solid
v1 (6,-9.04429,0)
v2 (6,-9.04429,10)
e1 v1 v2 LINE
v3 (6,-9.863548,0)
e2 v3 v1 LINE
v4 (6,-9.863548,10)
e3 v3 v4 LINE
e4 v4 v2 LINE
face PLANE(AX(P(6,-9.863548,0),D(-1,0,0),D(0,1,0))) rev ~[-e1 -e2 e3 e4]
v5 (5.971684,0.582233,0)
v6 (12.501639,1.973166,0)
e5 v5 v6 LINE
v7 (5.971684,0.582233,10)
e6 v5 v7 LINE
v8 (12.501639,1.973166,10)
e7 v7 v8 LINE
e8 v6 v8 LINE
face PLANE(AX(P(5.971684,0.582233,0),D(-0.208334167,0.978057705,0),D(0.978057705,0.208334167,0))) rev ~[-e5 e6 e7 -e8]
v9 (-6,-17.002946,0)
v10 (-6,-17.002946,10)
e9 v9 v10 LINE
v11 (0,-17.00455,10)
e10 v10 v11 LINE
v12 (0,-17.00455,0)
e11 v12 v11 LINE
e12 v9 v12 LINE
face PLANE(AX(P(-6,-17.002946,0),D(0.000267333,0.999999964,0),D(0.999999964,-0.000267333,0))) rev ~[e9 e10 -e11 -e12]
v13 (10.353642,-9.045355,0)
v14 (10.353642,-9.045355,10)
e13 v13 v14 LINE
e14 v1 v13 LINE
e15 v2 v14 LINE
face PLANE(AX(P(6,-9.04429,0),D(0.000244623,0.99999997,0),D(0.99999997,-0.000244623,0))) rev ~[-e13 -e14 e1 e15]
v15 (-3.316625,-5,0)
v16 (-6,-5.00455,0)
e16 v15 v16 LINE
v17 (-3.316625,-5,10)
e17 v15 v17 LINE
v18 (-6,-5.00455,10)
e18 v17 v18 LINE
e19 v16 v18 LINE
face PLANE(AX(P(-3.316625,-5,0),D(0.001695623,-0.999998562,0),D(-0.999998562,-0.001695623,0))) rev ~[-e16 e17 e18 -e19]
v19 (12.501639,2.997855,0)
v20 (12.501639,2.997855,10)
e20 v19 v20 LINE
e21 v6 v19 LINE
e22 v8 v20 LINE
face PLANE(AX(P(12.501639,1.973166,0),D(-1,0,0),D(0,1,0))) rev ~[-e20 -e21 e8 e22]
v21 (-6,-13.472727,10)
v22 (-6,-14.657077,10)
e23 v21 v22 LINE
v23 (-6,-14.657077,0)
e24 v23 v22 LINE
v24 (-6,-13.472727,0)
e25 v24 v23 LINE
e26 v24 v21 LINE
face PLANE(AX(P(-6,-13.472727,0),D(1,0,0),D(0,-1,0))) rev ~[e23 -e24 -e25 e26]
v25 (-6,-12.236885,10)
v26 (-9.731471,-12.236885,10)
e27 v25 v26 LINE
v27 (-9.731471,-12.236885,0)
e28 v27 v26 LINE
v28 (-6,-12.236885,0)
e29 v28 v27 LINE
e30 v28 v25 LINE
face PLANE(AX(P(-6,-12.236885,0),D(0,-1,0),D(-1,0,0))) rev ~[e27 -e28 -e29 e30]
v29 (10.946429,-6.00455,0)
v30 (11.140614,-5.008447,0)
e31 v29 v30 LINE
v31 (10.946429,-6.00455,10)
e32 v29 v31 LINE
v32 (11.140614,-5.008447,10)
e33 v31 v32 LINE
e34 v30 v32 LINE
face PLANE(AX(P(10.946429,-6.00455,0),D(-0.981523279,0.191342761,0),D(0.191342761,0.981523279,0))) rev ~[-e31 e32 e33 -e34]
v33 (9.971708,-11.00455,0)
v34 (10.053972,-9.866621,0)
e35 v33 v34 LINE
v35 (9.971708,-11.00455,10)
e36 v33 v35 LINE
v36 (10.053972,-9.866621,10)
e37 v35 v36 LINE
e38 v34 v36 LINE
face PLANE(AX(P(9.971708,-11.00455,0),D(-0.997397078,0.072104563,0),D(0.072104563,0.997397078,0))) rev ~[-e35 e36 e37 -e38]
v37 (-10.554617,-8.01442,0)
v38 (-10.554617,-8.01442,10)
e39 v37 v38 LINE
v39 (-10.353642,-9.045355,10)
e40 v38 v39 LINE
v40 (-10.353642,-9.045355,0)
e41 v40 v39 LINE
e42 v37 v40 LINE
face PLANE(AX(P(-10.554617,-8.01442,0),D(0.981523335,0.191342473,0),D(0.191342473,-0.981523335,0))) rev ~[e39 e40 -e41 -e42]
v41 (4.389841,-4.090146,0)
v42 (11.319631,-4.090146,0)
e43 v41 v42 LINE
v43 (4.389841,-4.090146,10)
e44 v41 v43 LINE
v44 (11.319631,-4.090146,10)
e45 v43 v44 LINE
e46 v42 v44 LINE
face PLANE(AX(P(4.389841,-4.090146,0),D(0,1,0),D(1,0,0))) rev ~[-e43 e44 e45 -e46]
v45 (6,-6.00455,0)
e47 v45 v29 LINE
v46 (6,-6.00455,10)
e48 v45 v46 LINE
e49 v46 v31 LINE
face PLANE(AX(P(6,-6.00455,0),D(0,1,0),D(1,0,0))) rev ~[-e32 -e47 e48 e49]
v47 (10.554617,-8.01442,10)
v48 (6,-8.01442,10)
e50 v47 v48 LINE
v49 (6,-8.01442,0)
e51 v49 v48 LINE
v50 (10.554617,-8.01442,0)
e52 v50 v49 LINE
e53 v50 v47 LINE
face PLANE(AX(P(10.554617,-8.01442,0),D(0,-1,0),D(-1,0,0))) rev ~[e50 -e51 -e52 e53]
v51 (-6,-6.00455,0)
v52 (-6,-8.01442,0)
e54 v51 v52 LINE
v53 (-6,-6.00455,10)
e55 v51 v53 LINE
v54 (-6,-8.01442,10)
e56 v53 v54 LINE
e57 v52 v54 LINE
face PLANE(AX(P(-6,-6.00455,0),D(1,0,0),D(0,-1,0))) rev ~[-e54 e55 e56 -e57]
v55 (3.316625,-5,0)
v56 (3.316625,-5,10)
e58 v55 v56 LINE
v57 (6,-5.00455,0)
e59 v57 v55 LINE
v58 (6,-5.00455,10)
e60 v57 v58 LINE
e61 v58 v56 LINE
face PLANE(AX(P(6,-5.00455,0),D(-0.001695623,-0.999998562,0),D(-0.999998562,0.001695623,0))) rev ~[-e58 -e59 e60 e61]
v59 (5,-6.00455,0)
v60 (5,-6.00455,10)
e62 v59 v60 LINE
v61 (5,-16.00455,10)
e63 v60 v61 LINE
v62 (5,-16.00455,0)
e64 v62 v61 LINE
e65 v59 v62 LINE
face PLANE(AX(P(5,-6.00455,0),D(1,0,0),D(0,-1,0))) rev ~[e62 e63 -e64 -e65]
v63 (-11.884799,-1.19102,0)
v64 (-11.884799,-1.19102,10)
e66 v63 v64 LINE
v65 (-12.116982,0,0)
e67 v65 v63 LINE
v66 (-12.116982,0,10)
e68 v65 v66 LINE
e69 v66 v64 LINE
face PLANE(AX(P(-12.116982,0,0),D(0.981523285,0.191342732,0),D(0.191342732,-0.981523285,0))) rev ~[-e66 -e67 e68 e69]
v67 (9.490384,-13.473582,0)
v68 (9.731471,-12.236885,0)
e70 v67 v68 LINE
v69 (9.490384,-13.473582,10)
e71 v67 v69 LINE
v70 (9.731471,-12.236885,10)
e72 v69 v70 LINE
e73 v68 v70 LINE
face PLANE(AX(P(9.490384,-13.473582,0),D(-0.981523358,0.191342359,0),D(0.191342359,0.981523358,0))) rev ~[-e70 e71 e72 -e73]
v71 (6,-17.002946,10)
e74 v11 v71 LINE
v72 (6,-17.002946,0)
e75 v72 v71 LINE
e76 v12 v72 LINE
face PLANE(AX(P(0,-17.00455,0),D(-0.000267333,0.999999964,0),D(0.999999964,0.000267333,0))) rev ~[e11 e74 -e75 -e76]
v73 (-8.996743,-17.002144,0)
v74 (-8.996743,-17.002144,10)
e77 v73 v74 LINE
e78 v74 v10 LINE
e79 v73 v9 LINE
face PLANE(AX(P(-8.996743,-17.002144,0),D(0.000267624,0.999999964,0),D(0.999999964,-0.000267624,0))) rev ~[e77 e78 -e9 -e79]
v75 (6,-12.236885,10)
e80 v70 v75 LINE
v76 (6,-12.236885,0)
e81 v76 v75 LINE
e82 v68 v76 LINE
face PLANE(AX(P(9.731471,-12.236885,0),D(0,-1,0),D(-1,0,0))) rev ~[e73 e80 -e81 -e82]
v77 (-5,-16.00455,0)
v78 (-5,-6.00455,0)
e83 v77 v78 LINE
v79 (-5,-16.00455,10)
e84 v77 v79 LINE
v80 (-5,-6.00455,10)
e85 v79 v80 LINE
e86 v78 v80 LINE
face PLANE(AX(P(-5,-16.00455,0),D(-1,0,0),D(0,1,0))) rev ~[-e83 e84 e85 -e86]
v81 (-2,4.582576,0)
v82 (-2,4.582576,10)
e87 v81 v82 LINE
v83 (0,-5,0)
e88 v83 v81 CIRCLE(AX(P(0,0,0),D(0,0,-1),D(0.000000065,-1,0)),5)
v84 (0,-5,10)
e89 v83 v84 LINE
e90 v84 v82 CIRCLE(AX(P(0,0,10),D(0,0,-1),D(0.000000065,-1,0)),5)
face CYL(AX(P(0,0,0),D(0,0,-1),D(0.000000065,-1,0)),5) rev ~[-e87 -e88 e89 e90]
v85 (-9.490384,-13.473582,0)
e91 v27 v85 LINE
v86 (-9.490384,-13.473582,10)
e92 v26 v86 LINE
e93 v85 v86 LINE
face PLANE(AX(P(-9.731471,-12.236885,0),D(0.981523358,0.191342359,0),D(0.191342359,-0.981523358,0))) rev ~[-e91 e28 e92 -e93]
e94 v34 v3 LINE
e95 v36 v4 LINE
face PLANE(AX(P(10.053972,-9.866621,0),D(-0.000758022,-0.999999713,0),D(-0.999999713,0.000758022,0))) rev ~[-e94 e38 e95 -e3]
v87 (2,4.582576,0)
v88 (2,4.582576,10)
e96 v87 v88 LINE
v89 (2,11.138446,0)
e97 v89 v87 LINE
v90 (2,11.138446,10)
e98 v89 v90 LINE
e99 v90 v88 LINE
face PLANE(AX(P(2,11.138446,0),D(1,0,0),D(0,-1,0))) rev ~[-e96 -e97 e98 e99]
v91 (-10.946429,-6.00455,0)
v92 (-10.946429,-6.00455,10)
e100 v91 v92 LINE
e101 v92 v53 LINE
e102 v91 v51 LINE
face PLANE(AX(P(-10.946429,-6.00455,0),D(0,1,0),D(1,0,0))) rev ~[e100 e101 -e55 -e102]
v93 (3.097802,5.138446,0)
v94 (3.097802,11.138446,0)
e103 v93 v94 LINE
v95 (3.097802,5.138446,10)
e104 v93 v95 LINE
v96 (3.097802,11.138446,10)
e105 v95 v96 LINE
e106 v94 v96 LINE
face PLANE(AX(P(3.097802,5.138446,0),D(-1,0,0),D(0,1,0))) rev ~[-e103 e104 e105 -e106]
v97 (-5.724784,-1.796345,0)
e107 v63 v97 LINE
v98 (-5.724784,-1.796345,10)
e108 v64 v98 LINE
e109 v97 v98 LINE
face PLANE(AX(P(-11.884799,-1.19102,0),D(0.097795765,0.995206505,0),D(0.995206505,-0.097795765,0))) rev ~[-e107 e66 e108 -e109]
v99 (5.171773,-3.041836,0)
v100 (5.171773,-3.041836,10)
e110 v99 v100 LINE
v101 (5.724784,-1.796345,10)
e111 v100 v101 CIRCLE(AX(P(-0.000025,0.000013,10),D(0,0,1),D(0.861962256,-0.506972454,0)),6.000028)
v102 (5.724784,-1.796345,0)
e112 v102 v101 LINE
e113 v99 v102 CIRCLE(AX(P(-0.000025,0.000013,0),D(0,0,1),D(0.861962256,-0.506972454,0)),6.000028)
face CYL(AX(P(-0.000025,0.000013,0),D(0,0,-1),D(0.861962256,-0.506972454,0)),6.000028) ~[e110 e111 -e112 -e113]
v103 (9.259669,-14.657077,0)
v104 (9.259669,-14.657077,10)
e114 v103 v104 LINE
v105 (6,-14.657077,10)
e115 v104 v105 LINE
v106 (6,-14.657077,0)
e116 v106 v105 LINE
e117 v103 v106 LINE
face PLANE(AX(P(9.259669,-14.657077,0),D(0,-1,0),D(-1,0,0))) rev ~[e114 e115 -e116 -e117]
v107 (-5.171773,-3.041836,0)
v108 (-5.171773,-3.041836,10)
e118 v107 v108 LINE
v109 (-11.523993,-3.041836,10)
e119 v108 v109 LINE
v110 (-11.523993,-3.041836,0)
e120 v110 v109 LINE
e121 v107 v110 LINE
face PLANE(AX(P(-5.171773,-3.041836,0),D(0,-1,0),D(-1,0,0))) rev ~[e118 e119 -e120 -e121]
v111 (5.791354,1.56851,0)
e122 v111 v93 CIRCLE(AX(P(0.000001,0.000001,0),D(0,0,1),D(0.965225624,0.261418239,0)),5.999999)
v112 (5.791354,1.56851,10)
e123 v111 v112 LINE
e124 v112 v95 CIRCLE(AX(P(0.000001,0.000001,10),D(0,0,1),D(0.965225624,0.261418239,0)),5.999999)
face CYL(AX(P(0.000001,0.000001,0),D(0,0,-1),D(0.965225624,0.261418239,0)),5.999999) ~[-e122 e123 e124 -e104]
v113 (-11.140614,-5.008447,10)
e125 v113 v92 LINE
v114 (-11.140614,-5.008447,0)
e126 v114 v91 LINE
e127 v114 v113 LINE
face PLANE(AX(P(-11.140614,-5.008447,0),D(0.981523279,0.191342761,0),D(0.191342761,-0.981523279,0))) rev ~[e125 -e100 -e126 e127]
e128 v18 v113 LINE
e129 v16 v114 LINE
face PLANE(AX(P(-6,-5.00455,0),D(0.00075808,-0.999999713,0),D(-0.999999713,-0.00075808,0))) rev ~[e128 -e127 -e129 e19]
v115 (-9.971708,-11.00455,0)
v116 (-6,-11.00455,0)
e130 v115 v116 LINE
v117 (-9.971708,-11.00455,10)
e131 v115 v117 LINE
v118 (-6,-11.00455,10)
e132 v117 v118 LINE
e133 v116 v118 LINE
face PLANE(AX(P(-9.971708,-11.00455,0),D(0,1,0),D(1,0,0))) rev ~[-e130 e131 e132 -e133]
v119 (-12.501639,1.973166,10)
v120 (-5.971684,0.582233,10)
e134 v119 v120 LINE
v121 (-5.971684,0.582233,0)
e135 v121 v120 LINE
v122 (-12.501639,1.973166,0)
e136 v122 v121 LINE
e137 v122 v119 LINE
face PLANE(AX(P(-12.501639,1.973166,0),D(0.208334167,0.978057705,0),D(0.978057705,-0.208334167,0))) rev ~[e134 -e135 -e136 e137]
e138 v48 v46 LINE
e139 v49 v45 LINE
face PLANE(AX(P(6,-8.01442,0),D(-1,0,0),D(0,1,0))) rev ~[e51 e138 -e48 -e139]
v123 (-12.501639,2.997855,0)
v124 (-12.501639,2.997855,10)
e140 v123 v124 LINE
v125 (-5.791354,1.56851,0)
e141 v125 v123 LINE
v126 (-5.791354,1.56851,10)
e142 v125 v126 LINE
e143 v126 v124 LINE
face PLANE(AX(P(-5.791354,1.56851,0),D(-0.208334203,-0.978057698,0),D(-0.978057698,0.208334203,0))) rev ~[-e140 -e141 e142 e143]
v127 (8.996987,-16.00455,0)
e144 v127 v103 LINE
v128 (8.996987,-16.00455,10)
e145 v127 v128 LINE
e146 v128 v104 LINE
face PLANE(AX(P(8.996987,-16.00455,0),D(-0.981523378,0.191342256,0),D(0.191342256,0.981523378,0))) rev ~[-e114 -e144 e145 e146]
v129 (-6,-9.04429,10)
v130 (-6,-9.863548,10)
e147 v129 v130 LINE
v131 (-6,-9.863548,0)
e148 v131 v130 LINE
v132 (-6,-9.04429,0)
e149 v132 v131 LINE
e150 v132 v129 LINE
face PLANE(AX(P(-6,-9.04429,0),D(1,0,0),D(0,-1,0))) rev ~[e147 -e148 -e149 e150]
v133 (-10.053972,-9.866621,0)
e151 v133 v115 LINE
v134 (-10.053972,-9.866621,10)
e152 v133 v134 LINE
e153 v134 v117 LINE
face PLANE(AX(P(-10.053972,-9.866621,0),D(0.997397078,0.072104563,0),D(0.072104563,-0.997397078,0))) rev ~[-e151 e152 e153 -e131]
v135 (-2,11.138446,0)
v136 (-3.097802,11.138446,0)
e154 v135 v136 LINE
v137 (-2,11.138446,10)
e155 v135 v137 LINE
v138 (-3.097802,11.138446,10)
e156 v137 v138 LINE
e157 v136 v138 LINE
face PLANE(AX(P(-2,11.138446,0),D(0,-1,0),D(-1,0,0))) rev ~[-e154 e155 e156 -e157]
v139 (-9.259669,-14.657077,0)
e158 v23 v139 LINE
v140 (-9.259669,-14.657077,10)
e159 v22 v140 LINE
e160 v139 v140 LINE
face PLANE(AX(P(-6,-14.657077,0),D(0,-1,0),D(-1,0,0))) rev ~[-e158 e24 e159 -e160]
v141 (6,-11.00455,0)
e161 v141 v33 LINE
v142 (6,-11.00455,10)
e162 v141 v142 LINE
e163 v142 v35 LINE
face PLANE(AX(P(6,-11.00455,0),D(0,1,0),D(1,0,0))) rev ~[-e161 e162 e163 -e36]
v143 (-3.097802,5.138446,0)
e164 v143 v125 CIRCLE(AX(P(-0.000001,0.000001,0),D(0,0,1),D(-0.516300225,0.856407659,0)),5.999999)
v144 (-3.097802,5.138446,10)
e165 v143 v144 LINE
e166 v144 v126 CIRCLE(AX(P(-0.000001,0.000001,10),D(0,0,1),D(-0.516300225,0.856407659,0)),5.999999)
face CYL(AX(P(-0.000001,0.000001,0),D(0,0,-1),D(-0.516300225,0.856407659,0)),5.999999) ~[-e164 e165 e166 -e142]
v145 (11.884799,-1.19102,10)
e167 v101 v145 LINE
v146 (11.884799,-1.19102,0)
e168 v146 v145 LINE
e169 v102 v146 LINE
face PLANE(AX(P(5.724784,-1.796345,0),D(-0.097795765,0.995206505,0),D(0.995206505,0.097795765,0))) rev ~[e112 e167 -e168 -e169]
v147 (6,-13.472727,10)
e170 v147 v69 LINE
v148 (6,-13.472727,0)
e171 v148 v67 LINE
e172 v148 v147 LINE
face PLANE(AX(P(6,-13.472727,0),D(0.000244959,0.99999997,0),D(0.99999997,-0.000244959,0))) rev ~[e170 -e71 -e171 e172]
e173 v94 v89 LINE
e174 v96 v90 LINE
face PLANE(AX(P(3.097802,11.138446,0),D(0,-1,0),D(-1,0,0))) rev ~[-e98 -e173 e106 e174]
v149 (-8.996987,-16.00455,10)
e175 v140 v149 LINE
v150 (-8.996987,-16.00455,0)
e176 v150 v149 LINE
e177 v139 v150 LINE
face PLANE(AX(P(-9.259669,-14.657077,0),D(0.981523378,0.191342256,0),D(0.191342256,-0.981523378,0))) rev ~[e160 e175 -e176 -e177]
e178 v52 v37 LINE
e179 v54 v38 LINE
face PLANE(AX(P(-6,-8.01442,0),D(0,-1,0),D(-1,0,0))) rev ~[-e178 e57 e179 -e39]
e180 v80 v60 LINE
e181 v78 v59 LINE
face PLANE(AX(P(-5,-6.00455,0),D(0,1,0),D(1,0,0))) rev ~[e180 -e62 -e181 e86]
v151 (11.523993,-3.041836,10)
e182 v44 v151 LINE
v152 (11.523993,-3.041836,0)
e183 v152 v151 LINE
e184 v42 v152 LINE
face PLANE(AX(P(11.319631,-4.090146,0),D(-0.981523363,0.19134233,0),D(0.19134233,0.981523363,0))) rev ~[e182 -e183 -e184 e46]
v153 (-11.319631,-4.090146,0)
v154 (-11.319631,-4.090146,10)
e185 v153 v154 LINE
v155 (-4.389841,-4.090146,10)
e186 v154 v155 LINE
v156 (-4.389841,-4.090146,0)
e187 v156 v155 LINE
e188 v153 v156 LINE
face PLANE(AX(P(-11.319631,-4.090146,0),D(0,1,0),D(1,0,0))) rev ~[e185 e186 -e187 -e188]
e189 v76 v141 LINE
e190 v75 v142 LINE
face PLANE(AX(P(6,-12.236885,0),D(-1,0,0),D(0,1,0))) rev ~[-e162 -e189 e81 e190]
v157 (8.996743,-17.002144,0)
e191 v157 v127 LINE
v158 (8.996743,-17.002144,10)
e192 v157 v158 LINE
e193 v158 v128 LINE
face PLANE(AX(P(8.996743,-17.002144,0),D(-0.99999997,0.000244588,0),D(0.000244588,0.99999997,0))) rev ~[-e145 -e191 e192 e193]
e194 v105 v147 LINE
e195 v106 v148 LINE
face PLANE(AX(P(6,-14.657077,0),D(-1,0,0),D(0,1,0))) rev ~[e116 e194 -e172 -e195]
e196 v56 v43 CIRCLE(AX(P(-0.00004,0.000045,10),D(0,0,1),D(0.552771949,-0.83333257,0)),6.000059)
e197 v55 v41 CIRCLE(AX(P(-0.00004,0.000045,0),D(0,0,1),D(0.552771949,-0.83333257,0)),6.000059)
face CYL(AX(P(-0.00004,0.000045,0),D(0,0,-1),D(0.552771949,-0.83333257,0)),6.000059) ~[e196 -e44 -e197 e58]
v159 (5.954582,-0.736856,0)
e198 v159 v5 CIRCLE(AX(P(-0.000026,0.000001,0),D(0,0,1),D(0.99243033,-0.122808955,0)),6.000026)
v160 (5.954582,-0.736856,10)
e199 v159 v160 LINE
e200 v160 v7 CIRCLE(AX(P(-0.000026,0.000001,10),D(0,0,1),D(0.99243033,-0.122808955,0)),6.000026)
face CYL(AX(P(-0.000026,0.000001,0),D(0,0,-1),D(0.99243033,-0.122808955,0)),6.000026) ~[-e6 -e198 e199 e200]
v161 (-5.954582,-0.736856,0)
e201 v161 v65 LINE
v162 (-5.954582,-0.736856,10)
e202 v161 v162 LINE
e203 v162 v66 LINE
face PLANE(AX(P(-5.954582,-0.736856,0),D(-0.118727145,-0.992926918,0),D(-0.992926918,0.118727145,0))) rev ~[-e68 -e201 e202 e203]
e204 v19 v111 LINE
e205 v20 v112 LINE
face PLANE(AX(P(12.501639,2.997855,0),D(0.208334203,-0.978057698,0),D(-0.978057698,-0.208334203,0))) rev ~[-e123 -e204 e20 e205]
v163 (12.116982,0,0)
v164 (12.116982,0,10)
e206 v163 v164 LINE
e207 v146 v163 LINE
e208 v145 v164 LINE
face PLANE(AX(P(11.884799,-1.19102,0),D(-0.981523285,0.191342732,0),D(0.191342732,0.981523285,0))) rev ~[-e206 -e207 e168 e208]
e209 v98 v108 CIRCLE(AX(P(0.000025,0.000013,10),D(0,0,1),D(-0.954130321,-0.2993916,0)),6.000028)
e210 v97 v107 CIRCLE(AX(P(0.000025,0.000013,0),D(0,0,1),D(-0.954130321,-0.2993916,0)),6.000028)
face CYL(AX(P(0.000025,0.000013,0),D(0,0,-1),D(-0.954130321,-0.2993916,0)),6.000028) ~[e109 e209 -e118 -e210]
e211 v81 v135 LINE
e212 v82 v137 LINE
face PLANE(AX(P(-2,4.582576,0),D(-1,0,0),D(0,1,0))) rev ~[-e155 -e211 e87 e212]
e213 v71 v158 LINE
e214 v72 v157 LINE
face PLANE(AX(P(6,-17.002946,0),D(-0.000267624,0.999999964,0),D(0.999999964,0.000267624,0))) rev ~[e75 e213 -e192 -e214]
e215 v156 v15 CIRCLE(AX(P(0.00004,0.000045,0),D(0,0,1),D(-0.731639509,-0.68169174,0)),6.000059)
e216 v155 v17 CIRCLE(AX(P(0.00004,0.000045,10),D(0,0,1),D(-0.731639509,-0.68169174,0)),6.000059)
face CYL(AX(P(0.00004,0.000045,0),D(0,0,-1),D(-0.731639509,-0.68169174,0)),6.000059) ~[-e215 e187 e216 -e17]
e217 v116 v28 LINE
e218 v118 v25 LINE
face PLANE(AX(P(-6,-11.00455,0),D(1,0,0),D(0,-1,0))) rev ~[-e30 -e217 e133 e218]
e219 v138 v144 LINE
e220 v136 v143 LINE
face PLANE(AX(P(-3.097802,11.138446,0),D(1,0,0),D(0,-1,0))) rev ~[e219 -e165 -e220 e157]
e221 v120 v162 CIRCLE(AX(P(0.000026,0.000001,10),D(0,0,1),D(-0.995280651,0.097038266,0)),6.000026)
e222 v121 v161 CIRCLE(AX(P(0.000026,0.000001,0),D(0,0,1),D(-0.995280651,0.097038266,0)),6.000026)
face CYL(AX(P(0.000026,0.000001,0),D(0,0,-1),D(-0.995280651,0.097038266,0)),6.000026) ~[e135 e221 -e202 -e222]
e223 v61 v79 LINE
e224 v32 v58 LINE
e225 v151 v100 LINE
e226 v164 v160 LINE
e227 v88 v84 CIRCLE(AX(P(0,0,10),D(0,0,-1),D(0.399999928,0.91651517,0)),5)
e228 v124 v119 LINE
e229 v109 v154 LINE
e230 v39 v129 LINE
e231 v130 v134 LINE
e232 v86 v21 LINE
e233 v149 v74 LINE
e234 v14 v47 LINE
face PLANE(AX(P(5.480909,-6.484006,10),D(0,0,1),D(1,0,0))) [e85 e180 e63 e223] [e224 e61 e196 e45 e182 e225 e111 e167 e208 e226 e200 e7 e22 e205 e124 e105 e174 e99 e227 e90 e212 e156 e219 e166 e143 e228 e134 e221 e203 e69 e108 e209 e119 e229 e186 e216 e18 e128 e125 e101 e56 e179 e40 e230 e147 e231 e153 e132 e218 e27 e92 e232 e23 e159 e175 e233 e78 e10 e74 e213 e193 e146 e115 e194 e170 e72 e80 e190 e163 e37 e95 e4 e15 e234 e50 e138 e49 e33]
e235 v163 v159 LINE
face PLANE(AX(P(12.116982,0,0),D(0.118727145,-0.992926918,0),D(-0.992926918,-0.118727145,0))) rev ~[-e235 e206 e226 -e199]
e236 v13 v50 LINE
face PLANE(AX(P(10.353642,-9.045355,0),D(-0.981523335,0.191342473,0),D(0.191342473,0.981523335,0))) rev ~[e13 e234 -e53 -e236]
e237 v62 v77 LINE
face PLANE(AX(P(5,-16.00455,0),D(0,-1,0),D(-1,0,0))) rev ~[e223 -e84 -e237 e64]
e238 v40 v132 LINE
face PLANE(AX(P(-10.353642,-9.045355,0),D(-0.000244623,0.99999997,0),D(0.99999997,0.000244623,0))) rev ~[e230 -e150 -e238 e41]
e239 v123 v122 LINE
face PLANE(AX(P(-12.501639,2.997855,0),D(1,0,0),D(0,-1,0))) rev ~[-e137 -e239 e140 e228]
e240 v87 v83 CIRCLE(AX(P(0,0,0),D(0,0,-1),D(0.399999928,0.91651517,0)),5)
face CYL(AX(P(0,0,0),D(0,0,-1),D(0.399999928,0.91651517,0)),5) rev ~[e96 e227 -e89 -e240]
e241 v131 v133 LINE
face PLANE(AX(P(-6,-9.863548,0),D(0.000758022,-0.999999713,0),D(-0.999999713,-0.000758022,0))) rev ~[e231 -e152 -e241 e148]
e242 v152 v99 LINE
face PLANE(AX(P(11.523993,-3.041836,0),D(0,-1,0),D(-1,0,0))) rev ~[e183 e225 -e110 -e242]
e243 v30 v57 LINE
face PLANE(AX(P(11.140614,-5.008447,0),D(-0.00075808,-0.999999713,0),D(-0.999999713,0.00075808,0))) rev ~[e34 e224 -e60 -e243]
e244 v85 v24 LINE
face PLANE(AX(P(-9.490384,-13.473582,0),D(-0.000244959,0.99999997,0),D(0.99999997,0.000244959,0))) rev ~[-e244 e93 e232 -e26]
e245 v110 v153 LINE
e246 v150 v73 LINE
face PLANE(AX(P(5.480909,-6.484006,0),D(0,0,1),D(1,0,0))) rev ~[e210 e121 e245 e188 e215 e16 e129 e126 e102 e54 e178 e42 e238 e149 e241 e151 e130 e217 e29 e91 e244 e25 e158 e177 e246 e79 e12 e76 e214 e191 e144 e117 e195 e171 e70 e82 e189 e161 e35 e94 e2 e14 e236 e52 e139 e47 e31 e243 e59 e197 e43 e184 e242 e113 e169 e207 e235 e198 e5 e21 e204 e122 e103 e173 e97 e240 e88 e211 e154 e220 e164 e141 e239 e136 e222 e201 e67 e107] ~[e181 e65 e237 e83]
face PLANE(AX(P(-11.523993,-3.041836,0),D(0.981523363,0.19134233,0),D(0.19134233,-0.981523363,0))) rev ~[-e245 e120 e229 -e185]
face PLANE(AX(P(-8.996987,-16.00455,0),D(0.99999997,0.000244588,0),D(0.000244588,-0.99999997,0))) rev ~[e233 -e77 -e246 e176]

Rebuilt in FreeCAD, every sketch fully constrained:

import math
import FreeCAD as App
import Part
import Sketcher

V = App.Vector

doc = App.newDocument("Part")
body = doc.addObject("PartDesign::Body", "Body")

sketch1 = doc.addObject("Sketcher::SketchObject", "Sketch")
body.addObject(sketch1)
sketch1.AttachmentSupport = (doc.XY_Plane, [""])
sketch1.MapMode = "FlatFace"
sketch1.addGeometry(Part.ArcOfCircle(Part.Circle(V(0, 0, 0), V(0, 0, 1), 5), math.radians(-90.000004), math.radians(66.421826)), False)
sketch1.addGeometry(Part.ArcOfCircle(Part.Circle(V(0, 0, 0), V(0, 0, 1), 5), math.radians(113.578174), math.radians(270.000004)), False)
sketch1.addGeometry(Part.LineSegment(V(-2, 4.582576, 0), V(-2, 11.138446, 0)), False)
sketch1.addGeometry(Part.LineSegment(V(-2, 11.138446, 0), V(-3.097802, 11.138446, 0)), False)
sketch1.addGeometry(Part.LineSegment(V(-3.097802, 11.138446, 0), V(-3.097802, 5.138446, 0)), False)
sketch1.addGeometry(Part.ArcOfCircle(Part.Circle(V(-0.000001, 0.000001, 0), V(0, 0, 1), 5.999999), math.radians(121.084403), math.radians(164.845768)), False)
sketch1.addGeometry(Part.LineSegment(V(-5.791354, 1.56851, 0), V(-12.501639, 2.997855, 0)), False)
sketch1.addGeometry(Part.LineSegment(V(-12.501639, 2.997855, 0), V(-12.501639, 1.973166, 0)), False)
sketch1.addGeometry(Part.LineSegment(V(-12.501639, 1.973166, 0), V(-5.971684, 0.582233, 0)), False)
sketch1.addGeometry(Part.ArcOfCircle(Part.Circle(V(0.000026, 0.000001, 0), V(0, 0, 1), 6.000026), math.radians(174.431354), math.radians(187.054243)), False)
sketch1.addGeometry(Part.LineSegment(V(-5.954582, -0.736856, 0), V(-12.116982, 0, 0)), False)
sketch1.addGeometry(Part.LineSegment(V(-12.116982, 0, 0), V(-11.884799, -1.19102, 0)), False)
sketch1.addGeometry(Part.LineSegment(V(-11.884799, -1.19102, 0), V(-5.724784, -1.796345, 0)), False)
sketch1.addGeometry(Part.ArcOfCircle(Part.Circle(V(0.000025, 0.000013, 0), V(0, 0, 1), 6.000028), math.radians(-162.578935), math.radians(-149.537624)), False)
sketch1.addGeometry(Part.LineSegment(V(-5.171773, -3.041836, 0), V(-11.523993, -3.041836, 0)), False)
sketch1.addGeometry(Part.LineSegment(V(-11.523993, -3.041836, 0), V(-11.319631, -4.090146, 0)), False)
sketch1.addGeometry(Part.LineSegment(V(-11.319631, -4.090146, 0), V(-4.389841, -4.090146, 0)), False)
sketch1.addGeometry(Part.ArcOfCircle(Part.Circle(V(0.00004, 0.000045, 0), V(0, 0, 1), 6.000059), math.radians(-137.024017), math.radians(-123.557389)), False)
sketch1.addGeometry(Part.LineSegment(V(-3.316625, -5, 0), V(-6, -5.00455, 0)), False)
sketch1.addGeometry(Part.LineSegment(V(-6, -5.00455, 0), V(-11.140614, -5.008447, 0)), False)
sketch1.addGeometry(Part.LineSegment(V(-11.140614, -5.008447, 0), V(-10.946429, -6.00455, 0)), False)
sketch1.addGeometry(Part.LineSegment(V(-10.946429, -6.00455, 0), V(-6, -6.00455, 0)), False)
sketch1.addGeometry(Part.LineSegment(V(-6, -6.00455, 0), V(-6, -8.01442, 0)), False)
sketch1.addGeometry(Part.LineSegment(V(-6, -8.01442, 0), V(-10.554617, -8.01442, 0)), False)
sketch1.addGeometry(Part.LineSegment(V(-10.554617, -8.01442, 0), V(-10.353642, -9.045355, 0)), False)
sketch1.addGeometry(Part.LineSegment(V(-10.353642, -9.045355, 0), V(-6, -9.04429, 0)), False)
sketch1.addGeometry(Part.LineSegment(V(-6, -9.04429, 0), V(-6, -9.863548, 0)), False)
sketch1.addGeometry(Part.LineSegment(V(-6, -9.863548, 0), V(-10.053972, -9.866621, 0)), False)
sketch1.addGeometry(Part.LineSegment(V(-10.053972, -9.866621, 0), V(-9.971708, -11.00455, 0)), False)
sketch1.addGeometry(Part.LineSegment(V(-9.971708, -11.00455, 0), V(-6, -11.00455, 0)), False)
sketch1.addGeometry(Part.LineSegment(V(-6, -11.00455, 0), V(-6, -12.236885, 0)), False)
sketch1.addGeometry(Part.LineSegment(V(-6, -12.236885, 0), V(-9.731471, -12.236885, 0)), False)
sketch1.addGeometry(Part.LineSegment(V(-9.731471, -12.236885, 0), V(-9.490384, -13.473582, 0)), False)
sketch1.addGeometry(Part.LineSegment(V(-9.490384, -13.473582, 0), V(-6, -13.472727, 0)), False)
sketch1.addGeometry(Part.LineSegment(V(-6, -13.472727, 0), V(-6, -14.657077, 0)), False)
sketch1.addGeometry(Part.LineSegment(V(-6, -14.657077, 0), V(-9.259669, -14.657077, 0)), False)
sketch1.addGeometry(Part.LineSegment(V(-9.259669, -14.657077, 0), V(-8.996987, -16.00455, 0)), False)
sketch1.addGeometry(Part.LineSegment(V(-8.996987, -16.00455, 0), V(-8.996743, -17.002144, 0)), False)
sketch1.addGeometry(Part.LineSegment(V(-8.996743, -17.002144, 0), V(-6, -17.002946, 0)), False)
sketch1.addGeometry(Part.LineSegment(V(-6, -17.002946, 0), V(0, -17.00455, 0)), False)
sketch1.addGeometry(Part.LineSegment(V(0, -17.00455, 0), V(6, -17.002946, 0)), False)
sketch1.addGeometry(Part.LineSegment(V(6, -17.002946, 0), V(8.996743, -17.002144, 0)), False)
sketch1.addGeometry(Part.LineSegment(V(8.996743, -17.002144, 0), V(8.996987, -16.00455, 0)), False)
sketch1.addGeometry(Part.LineSegment(V(8.996987, -16.00455, 0), V(9.259669, -14.657077, 0)), False)
sketch1.addGeometry(Part.LineSegment(V(9.259669, -14.657077, 0), V(6, -14.657077, 0)), False)
sketch1.addGeometry(Part.LineSegment(V(6, -14.657077, 0), V(6, -13.472727, 0)), False)
sketch1.addGeometry(Part.LineSegment(V(6, -13.472727, 0), V(9.490384, -13.473582, 0)), False)
sketch1.addGeometry(Part.LineSegment(V(9.490384, -13.473582, 0), V(9.731471, -12.236885, 0)), False)
sketch1.addGeometry(Part.LineSegment(V(9.731471, -12.236885, 0), V(6, -12.236885, 0)), False)
sketch1.addGeometry(Part.LineSegment(V(6, -12.236885, 0), V(6, -11.00455, 0)), False)
sketch1.addGeometry(Part.LineSegment(V(6, -11.00455, 0), V(9.971708, -11.00455, 0)), False)
sketch1.addGeometry(Part.LineSegment(V(9.971708, -11.00455, 0), V(10.053972, -9.866621, 0)), False)
sketch1.addGeometry(Part.LineSegment(V(10.053972, -9.866621, 0), V(6, -9.863548, 0)), False)
sketch1.addGeometry(Part.LineSegment(V(6, -9.863548, 0), V(6, -9.04429, 0)), False)
sketch1.addGeometry(Part.LineSegment(V(6, -9.04429, 0), V(10.353642, -9.045355, 0)), False)
sketch1.addGeometry(Part.LineSegment(V(10.353642, -9.045355, 0), V(10.554617, -8.01442, 0)), False)
sketch1.addGeometry(Part.LineSegment(V(10.554617, -8.01442, 0), V(6, -8.01442, 0)), False)
sketch1.addGeometry(Part.LineSegment(V(6, -8.01442, 0), V(6, -6.00455, 0)), False)
sketch1.addGeometry(Part.LineSegment(V(6, -6.00455, 0), V(10.946429, -6.00455, 0)), False)
sketch1.addGeometry(Part.LineSegment(V(10.946429, -6.00455, 0), V(11.140614, -5.008447, 0)), False)
sketch1.addGeometry(Part.LineSegment(V(11.140614, -5.008447, 0), V(6, -5.00455, 0)), False)
sketch1.addGeometry(Part.LineSegment(V(6, -5.00455, 0), V(3.316625, -5, 0)), False)
sketch1.addGeometry(Part.ArcOfCircle(Part.Circle(V(-0.00004, 0.000045, 0), V(0, 0, 1), 6.000059), math.radians(-56.442611), math.radians(-42.975983)), False)
sketch1.addGeometry(Part.LineSegment(V(4.389841, -4.090146, 0), V(11.319631, -4.090146, 0)), False)
sketch1.addGeometry(Part.LineSegment(V(11.319631, -4.090146, 0), V(11.523993, -3.041836, 0)), False)
sketch1.addGeometry(Part.LineSegment(V(11.523993, -3.041836, 0), V(5.171773, -3.041836, 0)), False)
sketch1.addGeometry(Part.ArcOfCircle(Part.Circle(V(-0.000025, 0.000013, 0), V(0, 0, 1), 6.000028), math.radians(-30.462376), math.radians(-17.421065)), False)
sketch1.addGeometry(Part.LineSegment(V(5.724784, -1.796345, 0), V(11.884799, -1.19102, 0)), False)
sketch1.addGeometry(Part.LineSegment(V(11.884799, -1.19102, 0), V(12.116982, 0, 0)), False)
sketch1.addGeometry(Part.LineSegment(V(12.116982, 0, 0), V(5.954582, -0.736856, 0)), False)
sketch1.addGeometry(Part.ArcOfCircle(Part.Circle(V(-0.000026, 0.000001, 0), V(0, 0, 1), 6.000026), math.radians(-7.054243), math.radians(5.568646)), False)
sketch1.addGeometry(Part.LineSegment(V(5.971684, 0.582233, 0), V(12.501639, 1.973166, 0)), False)
sketch1.addGeometry(Part.LineSegment(V(12.501639, 1.973166, 0), V(12.501639, 2.997855, 0)), False)
sketch1.addGeometry(Part.LineSegment(V(12.501639, 2.997855, 0), V(5.791354, 1.56851, 0)), False)
sketch1.addGeometry(Part.ArcOfCircle(Part.Circle(V(0.000001, 0.000001, 0), V(0, 0, 1), 5.999999), math.radians(15.154232), math.radians(58.915597)), False)
sketch1.addGeometry(Part.LineSegment(V(3.097802, 5.138446, 0), V(3.097802, 11.138446, 0)), False)
sketch1.addGeometry(Part.LineSegment(V(3.097802, 11.138446, 0), V(2, 11.138446, 0)), False)
sketch1.addGeometry(Part.LineSegment(V(2, 11.138446, 0), V(2, 4.582576, 0)), False)
sketch1.addGeometry(Part.LineSegment(V(5, -6.00455, 0), V(5, -16.00455, 0)), False)
sketch1.addGeometry(Part.LineSegment(V(5, -16.00455, 0), V(-5, -16.00455, 0)), False)
sketch1.addGeometry(Part.LineSegment(V(-5, -16.00455, 0), V(-5, -6.00455, 0)), False)
sketch1.addGeometry(Part.LineSegment(V(-5, -6.00455, 0), V(5, -6.00455, 0)), False)
sketch1.addConstraint(Sketcher.Constraint("Tangent", 0, 1, 1, 2))
sketch1.addConstraint(Sketcher.Constraint("Coincident", 1, 1, 2, 1))
sketch1.addConstraint(Sketcher.Constraint("Coincident", 2, 2, 3, 1))
sketch1.addConstraint(Sketcher.Constraint("Coincident", 3, 2, 4, 1))
sketch1.addConstraint(Sketcher.Constraint("Coincident", 4, 2, 5, 1))
sketch1.addConstraint(Sketcher.Constraint("Coincident", 5, 2, 6, 1))
sketch1.addConstraint(Sketcher.Constraint("Coincident", 6, 2, 7, 1))
sketch1.addConstraint(Sketcher.Constraint("Coincident", 7, 2, 8, 1))
sketch1.addConstraint(Sketcher.Constraint("Coincident", 8, 2, 9, 1))
sketch1.addConstraint(Sketcher.Constraint("Coincident", 9, 2, 10, 1))
sketch1.addConstraint(Sketcher.Constraint("Coincident", 10, 2, 11, 1))
sketch1.addConstraint(Sketcher.Constraint("Coincident", 11, 2, 12, 1))
sketch1.addConstraint(Sketcher.Constraint("Coincident", 12, 2, 13, 1))
sketch1.addConstraint(Sketcher.Constraint("Coincident", 13, 2, 14, 1))
sketch1.addConstraint(Sketcher.Constraint("Coincident", 14, 2, 15, 1))
sketch1.addConstraint(Sketcher.Constraint("Coincident", 15, 2, 16, 1))
sketch1.addConstraint(Sketcher.Constraint("Coincident", 16, 2, 17, 1))
sketch1.addConstraint(Sketcher.Constraint("Coincident", 17, 2, 18, 1))
sketch1.addConstraint(Sketcher.Constraint("Coincident", 18, 2, 19, 1))
sketch1.addConstraint(Sketcher.Constraint("Coincident", 19, 2, 20, 1))
sketch1.addConstraint(Sketcher.Constraint("Coincident", 20, 2, 21, 1))
sketch1.addConstraint(Sketcher.Constraint("Coincident", 21, 2, 22, 1))
sketch1.addConstraint(Sketcher.Constraint("Coincident", 22, 2, 23, 1))
sketch1.addConstraint(Sketcher.Constraint("Coincident", 23, 2, 24, 1))
sketch1.addConstraint(Sketcher.Constraint("Coincident", 24, 2, 25, 1))
sketch1.addConstraint(Sketcher.Constraint("Coincident", 25, 2, 26, 1))
sketch1.addConstraint(Sketcher.Constraint("Coincident", 26, 2, 27, 1))
sketch1.addConstraint(Sketcher.Constraint("Coincident", 27, 2, 28, 1))
sketch1.addConstraint(Sketcher.Constraint("Coincident", 28, 2, 29, 1))
sketch1.addConstraint(Sketcher.Constraint("Coincident", 29, 2, 30, 1))
sketch1.addConstraint(Sketcher.Constraint("Coincident", 30, 2, 31, 1))
sketch1.addConstraint(Sketcher.Constraint("Coincident", 31, 2, 32, 1))
sketch1.addConstraint(Sketcher.Constraint("Coincident", 32, 2, 33, 1))
sketch1.addConstraint(Sketcher.Constraint("Coincident", 33, 2, 34, 1))
sketch1.addConstraint(Sketcher.Constraint("Coincident", 34, 2, 35, 1))
sketch1.addConstraint(Sketcher.Constraint("Coincident", 35, 2, 36, 1))
sketch1.addConstraint(Sketcher.Constraint("Coincident", 36, 2, 37, 1))
sketch1.addConstraint(Sketcher.Constraint("Coincident", 37, 2, 38, 1))
sketch1.addConstraint(Sketcher.Constraint("Coincident", 38, 2, 39, 1))
sketch1.addConstraint(Sketcher.Constraint("Coincident", 39, 2, 40, 1))
sketch1.addConstraint(Sketcher.Constraint("Coincident", 40, 2, 41, 1))
sketch1.addConstraint(Sketcher.Constraint("Coincident", 41, 2, 42, 1))
sketch1.addConstraint(Sketcher.Constraint("Coincident", 42, 2, 43, 1))
sketch1.addConstraint(Sketcher.Constraint("Coincident", 43, 2, 44, 1))
sketch1.addConstraint(Sketcher.Constraint("Coincident", 44, 2, 45, 1))
sketch1.addConstraint(Sketcher.Constraint("Coincident", 45, 2, 46, 1))
sketch1.addConstraint(Sketcher.Constraint("Coincident", 46, 2, 47, 1))
sketch1.addConstraint(Sketcher.Constraint("Coincident", 47, 2, 48, 1))
sketch1.addConstraint(Sketcher.Constraint("Coincident", 48, 2, 49, 1))
sketch1.addConstraint(Sketcher.Constraint("Coincident", 49, 2, 50, 1))
sketch1.addConstraint(Sketcher.Constraint("Coincident", 50, 2, 51, 1))
sketch1.addConstraint(Sketcher.Constraint("Coincident", 51, 2, 52, 1))
sketch1.addConstraint(Sketcher.Constraint("Coincident", 52, 2, 53, 1))
sketch1.addConstraint(Sketcher.Constraint("Coincident", 53, 2, 54, 1))
sketch1.addConstraint(Sketcher.Constraint("Coincident", 54, 2, 55, 1))
sketch1.addConstraint(Sketcher.Constraint("Coincident", 55, 2, 56, 1))
sketch1.addConstraint(Sketcher.Constraint("Coincident", 56, 2, 57, 1))
sketch1.addConstraint(Sketcher.Constraint("Coincident", 57, 2, 58, 1))
sketch1.addConstraint(Sketcher.Constraint("Coincident", 58, 2, 59, 1))
sketch1.addConstraint(Sketcher.Constraint("Coincident", 59, 2, 60, 1))
sketch1.addConstraint(Sketcher.Constraint("Coincident", 60, 2, 61, 1))
sketch1.addConstraint(Sketcher.Constraint("Coincident", 61, 2, 62, 1))
sketch1.addConstraint(Sketcher.Constraint("Coincident", 62, 2, 63, 1))
sketch1.addConstraint(Sketcher.Constraint("Coincident", 63, 2, 64, 1))
sketch1.addConstraint(Sketcher.Constraint("Coincident", 64, 2, 65, 1))
sketch1.addConstraint(Sketcher.Constraint("Coincident", 65, 2, 66, 1))
sketch1.addConstraint(Sketcher.Constraint("Coincident", 66, 2, 67, 1))
sketch1.addConstraint(Sketcher.Constraint("Coincident", 67, 2, 68, 1))
sketch1.addConstraint(Sketcher.Constraint("Coincident", 68, 2, 69, 1))
sketch1.addConstraint(Sketcher.Constraint("Coincident", 69, 2, 70, 1))
sketch1.addConstraint(Sketcher.Constraint("Coincident", 70, 2, 71, 1))
sketch1.addConstraint(Sketcher.Constraint("Coincident", 71, 2, 72, 1))
sketch1.addConstraint(Sketcher.Constraint("Coincident", 72, 2, 73, 1))
sketch1.addConstraint(Sketcher.Constraint("Coincident", 73, 2, 74, 1))
sketch1.addConstraint(Sketcher.Constraint("Coincident", 74, 2, 75, 1))
sketch1.addConstraint(Sketcher.Constraint("Coincident", 75, 2, 76, 1))
sketch1.addConstraint(Sketcher.Constraint("Coincident", 76, 2, 77, 1))
sketch1.addConstraint(Sketcher.Constraint("Coincident", 77, 2, 0, 2))
sketch1.addConstraint(Sketcher.Constraint("Coincident", 78, 2, 79, 1))
sketch1.addConstraint(Sketcher.Constraint("Coincident", 79, 2, 80, 1))
sketch1.addConstraint(Sketcher.Constraint("Coincident", 80, 2, 81, 1))
sketch1.addConstraint(Sketcher.Constraint("Coincident", 81, 2, 78, 1))
sketch1.addConstraint(Sketcher.Constraint("Vertical", 2))
sketch1.addConstraint(Sketcher.Constraint("Horizontal", 3))
sketch1.addConstraint(Sketcher.Constraint("Vertical", 4))
sketch1.addConstraint(Sketcher.Constraint("Vertical", 7))
sketch1.addConstraint(Sketcher.Constraint("Horizontal", 14))
sketch1.addConstraint(Sketcher.Constraint("Horizontal", 16))
sketch1.addConstraint(Sketcher.Constraint("Horizontal", 21))
sketch1.addConstraint(Sketcher.Constraint("Vertical", 22))
sketch1.addConstraint(Sketcher.Constraint("Horizontal", 23))
sketch1.addConstraint(Sketcher.Constraint("Vertical", 26))
sketch1.addConstraint(Sketcher.Constraint("Horizontal", 29))
sketch1.addConstraint(Sketcher.Constraint("Vertical", 30))
sketch1.addConstraint(Sketcher.Constraint("Horizontal", 31))
sketch1.addConstraint(Sketcher.Constraint("Vertical", 34))
sketch1.addConstraint(Sketcher.Constraint("Horizontal", 35))
sketch1.addConstraint(Sketcher.Constraint("Horizontal", 44))
sketch1.addConstraint(Sketcher.Constraint("Vertical", 45))
sketch1.addConstraint(Sketcher.Constraint("Horizontal", 48))
sketch1.addConstraint(Sketcher.Constraint("Vertical", 49))
sketch1.addConstraint(Sketcher.Constraint("Horizontal", 50))
sketch1.addConstraint(Sketcher.Constraint("Vertical", 53))
sketch1.addConstraint(Sketcher.Constraint("Horizontal", 56))
sketch1.addConstraint(Sketcher.Constraint("Vertical", 57))
sketch1.addConstraint(Sketcher.Constraint("Horizontal", 58))
sketch1.addConstraint(Sketcher.Constraint("Horizontal", 63))
sketch1.addConstraint(Sketcher.Constraint("Horizontal", 65))
sketch1.addConstraint(Sketcher.Constraint("Vertical", 72))
sketch1.addConstraint(Sketcher.Constraint("Vertical", 75))
sketch1.addConstraint(Sketcher.Constraint("Horizontal", 76))
sketch1.addConstraint(Sketcher.Constraint("Vertical", 77))
sketch1.addConstraint(Sketcher.Constraint("Vertical", 78))
sketch1.addConstraint(Sketcher.Constraint("Horizontal", 79))
sketch1.addConstraint(Sketcher.Constraint("Vertical", 80))
sketch1.addConstraint(Sketcher.Constraint("Horizontal", 81))
sketch1.addConstraint(Sketcher.Constraint("Coincident", 0, 3, -1, 1))
sketch1.addConstraint(Sketcher.Constraint("Coincident", 5, 3, -1, 1))
sketch1.addConstraint(Sketcher.Constraint("Coincident", 74, 3, -1, 1))
sketch1.addConstraint(Sketcher.Constraint("Equal", 0, 1))
sketch1.addConstraint(Sketcher.Constraint("Equal", 17, 62))
sketch1.addConstraint(Sketcher.Constraint("Equal", 13, 66))
sketch1.addConstraint(Sketcher.Constraint("Equal", 9, 70))
sketch1.addConstraint(Sketcher.Constraint("Equal", 5, 74))
sketch1.addConstraint(Sketcher.Constraint("Symmetric", 9, 3, 70, 3, -1, 1))
sketch1.addConstraint(Sketcher.Constraint("Symmetric", 10, 2, 68, 2, -1, 1))
sketch1.addConstraint(Sketcher.Constraint("Symmetric", 17, 3, 62, 3, -2))
sketch1.addConstraint(Sketcher.Constraint("Symmetric", 13, 3, 66, 3, -2))
sketch1.addConstraint(Sketcher.Constraint("Symmetric", 38, 2, 40, 2, -2))
sketch1.addConstraint(Sketcher.Constraint("Symmetric", 37, 2, 41, 2, -2))
sketch1.addConstraint(Sketcher.Constraint("Symmetric", 36, 2, 42, 2, -2))
sketch1.addConstraint(Sketcher.Constraint("Symmetric", 35, 2, 43, 2, -2))
sketch1.addConstraint(Sketcher.Constraint("Symmetric", 33, 2, 45, 2, -2))
sketch1.addConstraint(Sketcher.Constraint("Symmetric", 32, 2, 46, 2, -2))
sketch1.addConstraint(Sketcher.Constraint("Symmetric", 31, 2, 47, 2, -2))
sketch1.addConstraint(Sketcher.Constraint("Symmetric", 29, 2, 49, 2, -2))
sketch1.addConstraint(Sketcher.Constraint("Symmetric", 27, 2, 51, 2, -2))
sketch1.addConstraint(Sketcher.Constraint("Symmetric", 26, 2, 52, 2, -2))
sketch1.addConstraint(Sketcher.Constraint("Symmetric", 24, 2, 54, 2, -2))
sketch1.addConstraint(Sketcher.Constraint("Symmetric", 23, 2, 55, 2, -2))
sketch1.addConstraint(Sketcher.Constraint("Symmetric", 21, 2, 57, 2, -2))
sketch1.addConstraint(Sketcher.Constraint("Symmetric", 19, 2, 59, 2, -2))
sketch1.addConstraint(Sketcher.Constraint("Symmetric", 18, 2, 60, 2, -2))
sketch1.addConstraint(Sketcher.Constraint("Symmetric", 15, 2, 63, 2, -2))
sketch1.addConstraint(Sketcher.Constraint("Symmetric", 14, 2, 64, 2, -2))
sketch1.addConstraint(Sketcher.Constraint("Symmetric", 11, 2, 67, 2, -2))
sketch1.addConstraint(Sketcher.Constraint("Symmetric", 9, 2, 69, 2, -2))
sketch1.addConstraint(Sketcher.Constraint("Symmetric", 7, 2, 71, 2, -2))
sketch1.addConstraint(Sketcher.Constraint("Symmetric", 3, 2, 75, 2, -2))
sketch1.addConstraint(Sketcher.Constraint("PointOnObject", 0, 1, -2))
sketch1.addConstraint(Sketcher.Constraint("PointOnObject", 10, 2, -1))
sketch1.addConstraint(Sketcher.Constraint("PointOnObject", 39, 2, -2))
sketch1.addConstraint(Sketcher.Constraint("Parallel", 6, 8))
sketch1.addConstraint(Sketcher.Constraint("Parallel", 11, 15))
sketch1.addConstraint(Sketcher.Constraint("Parallel", 15, 20))
sketch1.addConstraint(Sketcher.Constraint("Parallel", 20, 24))
sketch1.addConstraint(Sketcher.Constraint("Parallel", 19, 27))
sketch1.addConstraint(Sketcher.Constraint("Parallel", 24, 32))
sketch1.addConstraint(Sketcher.Constraint("Parallel", 25, 33))
sketch1.addConstraint(Sketcher.Constraint("Parallel", 32, 36))
sketch1.addConstraint(Sketcher.Constraint("Perpendicular", 33, 37))
sketch1.addConstraint(Sketcher.Constraint("Parallel", 38, 39))
sketch1.addConstraint(Sketcher.Constraint("Parallel", 46, 54))
sketch1.addConstraint(Sketcher.Constraint("Parallel", 55, 59))
sketch1.addConstraint(Sketcher.Constraint("Parallel", 71, 73))
sketch1.addConstraint(Sketcher.Constraint("Horizontal", 0, 1, 17, 2))
sketch1.addConstraint(Sketcher.Constraint("Horizontal", 17, 2, 61, 2))
sketch1.addConstraint(Sketcher.Constraint("Horizontal", 12, 2, 66, 2))
sketch1.addConstraint(Sketcher.Constraint("Horizontal", 8, 2, 70, 2))
sketch1.addConstraint(Sketcher.Constraint("Horizontal", 6, 2, 72, 2))
sketch1.addConstraint(Sketcher.Constraint("Horizontal", 1, 1, 77, 2))
sketch1.addConstraint(Sketcher.Constraint("Horizontal", 42, 2, 78, 2))
sketch1.addConstraint(Sketcher.Constraint("Horizontal", 58, 2, 80, 2))
sketch1.addConstraint(Sketcher.Constraint("Vertical", 9, 3, 13, 3))
sketch1.addConstraint(Sketcher.Constraint("Vertical", 18, 2, 21, 2))
sketch1.addConstraint(Sketcher.Constraint("Vertical", 22, 2, 25, 2))
sketch1.addConstraint(Sketcher.Constraint("Vertical", 26, 2, 29, 2))
sketch1.addConstraint(Sketcher.Constraint("Vertical", 30, 2, 33, 2))
sketch1.addConstraint(Sketcher.Constraint("Vertical", 34, 2, 38, 2))
sketch1.addConstraint(Sketcher.Constraint("Equal", 29, 50))
sketch1.addConstraint(Sketcher.Constraint("Equal", 81, 78))
sketch1.addConstraint(Sketcher.Constraint("Radius", 0, 5.0))
sketch1.addConstraint(Sketcher.Constraint("Radius", 5, 5.999999))
sketch1.addConstraint(Sketcher.Constraint("DistanceX", 79, 2, 79, 1, 10.0))
sketch1.addConstraint(Sketcher.Constraint("DistanceY", 4, 2, 4, 1, 6.0))
sketch1.addConstraint(Sketcher.Constraint("Distance", 39, 6.0))
sketch1.addConstraint(Sketcher.Constraint("DistanceX", 1, 1, -1, 1, 2.0))
sketch1.addConstraint(Sketcher.Constraint("DistanceX", -1, 1, 78, 2, 5.0))
sketch1.addConstraint(Sketcher.Constraint("Radius", 13, 6.000028))
sketch1.addConstraint(Sketcher.Constraint("Radius", 17, 6.000059))
sketch1.addConstraint(Sketcher.Constraint("Radius", 9, 6.000026))
sketch1.addConstraint(Sketcher.Constraint("Distance", 28, 1.140899))
sketch1.addConstraint(Sketcher.Constraint("DistanceX", 14, 2, 14, 1, 6.35222))
sketch1.addConstraint(Sketcher.Constraint("DistanceX", 16, 1, 16, 2, 6.92979))
sketch1.addConstraint(Sketcher.Constraint("DistanceX", 21, 1, 21, 2, 4.946429))
sketch1.addConstraint(Sketcher.Constraint("DistanceX", 31, 2, 31, 1, 3.731471))
sketch1.addConstraint(Sketcher.Constraint("DistanceX", 35, 2, 35, 1, 3.259669))
sketch1.addConstraint(Sketcher.Constraint("DistanceY", 2, 1, 2, 2, 6.55587))
sketch1.addConstraint(Sketcher.Constraint("DistanceY", 7, 2, 7, 1, 1.024689))
sketch1.addConstraint(Sketcher.Constraint("DistanceY", 22, 2, 22, 1, 2.00987))
sketch1.addConstraint(Sketcher.Constraint("DistanceY", 34, 2, 34, 1, 1.18435))
sketch1.addConstraint(Sketcher.Constraint("DistanceX", 11, 2, -1, 1, 11.884799))
sketch1.addConstraint(Sketcher.Constraint("Distance", 8, 6.676452))
sketch1.addConstraint(Sketcher.Constraint("Distance", 11, 1.21344))
sketch1.addConstraint(Sketcher.Constraint("Distance", 18, 2.683379))
sketch1.addConstraint(Sketcher.Constraint("Distance", 24, 1.050342))
sketch1.addConstraint(Sketcher.Constraint("Distance", 36, 1.372838))
sketch1.addConstraint(Sketcher.Constraint("DistanceX", 23, 2, 23, 1, 4.554617))
sketch1.addConstraint(Sketcher.Constraint("DistanceX", 29, 1, 29, 2, 3.971708))
sketch1.addConstraint(Sketcher.Constraint("DistanceY", 26, 2, 26, 1, 0.819258))
sketch1.addConstraint(Sketcher.Constraint("DistanceY", 30, 2, 30, 1, 1.232335))
sketch1.addConstraint(Sketcher.Constraint("DistanceY", -1, 1, 5, 2, 1.56851))
sketch1.addConstraint(Sketcher.Constraint("DistanceX", 6, 2, -1, 1, 12.501639))
sketch1.addConstraint(Sketcher.Constraint("DistanceY", 11, 2, -1, 1, 1.19102))
sketch1.addConstraint(Sketcher.Constraint("DistanceX", 15, 2, -1, 1, 11.319631))
sketch1.addConstraint(Sketcher.Constraint("DistanceY", 18, 2, -1, 1, 5.00455))
sketch1.addConstraint(Sketcher.Constraint("DistanceY", 20, 2, -1, 1, 6.00455))
sketch1.addConstraint(Sketcher.Constraint("DistanceY", 25, 2, -1, 1, 9.04429))
sketch1.addConstraint(Sketcher.Constraint("DistanceY", 27, 2, -1, 1, 9.866621))
sketch1.addConstraint(Sketcher.Constraint("DistanceY", 28, 2, -1, 1, 11.00455))
sketch1.addConstraint(Sketcher.Constraint("DistanceY", 39, 2, -1, 1, 17.00455))
sketch1.addConstraint(Sketcher.Constraint("Distance", 6, 6.860827))
sketch1.addConstraint(Sketcher.Constraint("Distance", 10, 6.206298))
sketch1.addConstraint(Sketcher.Constraint("Distance", 12, 6.189685))
sketch1.addConstraint(Sketcher.Constraint("Distance", 15, 1.068044))
sketch1.addConstraint(Sketcher.Constraint("Distance", 37, 0.997594))
sketch1.addConstraint(Sketcher.Constraint("DistanceX", 12, 2, -1, 1, 5.724784))
pad1 = doc.addObject("PartDesign::Pad", "Pad")
body.addObject(pad1)
pad1.Profile = sketch1
pad1.Length = 10

doc.recompute()
